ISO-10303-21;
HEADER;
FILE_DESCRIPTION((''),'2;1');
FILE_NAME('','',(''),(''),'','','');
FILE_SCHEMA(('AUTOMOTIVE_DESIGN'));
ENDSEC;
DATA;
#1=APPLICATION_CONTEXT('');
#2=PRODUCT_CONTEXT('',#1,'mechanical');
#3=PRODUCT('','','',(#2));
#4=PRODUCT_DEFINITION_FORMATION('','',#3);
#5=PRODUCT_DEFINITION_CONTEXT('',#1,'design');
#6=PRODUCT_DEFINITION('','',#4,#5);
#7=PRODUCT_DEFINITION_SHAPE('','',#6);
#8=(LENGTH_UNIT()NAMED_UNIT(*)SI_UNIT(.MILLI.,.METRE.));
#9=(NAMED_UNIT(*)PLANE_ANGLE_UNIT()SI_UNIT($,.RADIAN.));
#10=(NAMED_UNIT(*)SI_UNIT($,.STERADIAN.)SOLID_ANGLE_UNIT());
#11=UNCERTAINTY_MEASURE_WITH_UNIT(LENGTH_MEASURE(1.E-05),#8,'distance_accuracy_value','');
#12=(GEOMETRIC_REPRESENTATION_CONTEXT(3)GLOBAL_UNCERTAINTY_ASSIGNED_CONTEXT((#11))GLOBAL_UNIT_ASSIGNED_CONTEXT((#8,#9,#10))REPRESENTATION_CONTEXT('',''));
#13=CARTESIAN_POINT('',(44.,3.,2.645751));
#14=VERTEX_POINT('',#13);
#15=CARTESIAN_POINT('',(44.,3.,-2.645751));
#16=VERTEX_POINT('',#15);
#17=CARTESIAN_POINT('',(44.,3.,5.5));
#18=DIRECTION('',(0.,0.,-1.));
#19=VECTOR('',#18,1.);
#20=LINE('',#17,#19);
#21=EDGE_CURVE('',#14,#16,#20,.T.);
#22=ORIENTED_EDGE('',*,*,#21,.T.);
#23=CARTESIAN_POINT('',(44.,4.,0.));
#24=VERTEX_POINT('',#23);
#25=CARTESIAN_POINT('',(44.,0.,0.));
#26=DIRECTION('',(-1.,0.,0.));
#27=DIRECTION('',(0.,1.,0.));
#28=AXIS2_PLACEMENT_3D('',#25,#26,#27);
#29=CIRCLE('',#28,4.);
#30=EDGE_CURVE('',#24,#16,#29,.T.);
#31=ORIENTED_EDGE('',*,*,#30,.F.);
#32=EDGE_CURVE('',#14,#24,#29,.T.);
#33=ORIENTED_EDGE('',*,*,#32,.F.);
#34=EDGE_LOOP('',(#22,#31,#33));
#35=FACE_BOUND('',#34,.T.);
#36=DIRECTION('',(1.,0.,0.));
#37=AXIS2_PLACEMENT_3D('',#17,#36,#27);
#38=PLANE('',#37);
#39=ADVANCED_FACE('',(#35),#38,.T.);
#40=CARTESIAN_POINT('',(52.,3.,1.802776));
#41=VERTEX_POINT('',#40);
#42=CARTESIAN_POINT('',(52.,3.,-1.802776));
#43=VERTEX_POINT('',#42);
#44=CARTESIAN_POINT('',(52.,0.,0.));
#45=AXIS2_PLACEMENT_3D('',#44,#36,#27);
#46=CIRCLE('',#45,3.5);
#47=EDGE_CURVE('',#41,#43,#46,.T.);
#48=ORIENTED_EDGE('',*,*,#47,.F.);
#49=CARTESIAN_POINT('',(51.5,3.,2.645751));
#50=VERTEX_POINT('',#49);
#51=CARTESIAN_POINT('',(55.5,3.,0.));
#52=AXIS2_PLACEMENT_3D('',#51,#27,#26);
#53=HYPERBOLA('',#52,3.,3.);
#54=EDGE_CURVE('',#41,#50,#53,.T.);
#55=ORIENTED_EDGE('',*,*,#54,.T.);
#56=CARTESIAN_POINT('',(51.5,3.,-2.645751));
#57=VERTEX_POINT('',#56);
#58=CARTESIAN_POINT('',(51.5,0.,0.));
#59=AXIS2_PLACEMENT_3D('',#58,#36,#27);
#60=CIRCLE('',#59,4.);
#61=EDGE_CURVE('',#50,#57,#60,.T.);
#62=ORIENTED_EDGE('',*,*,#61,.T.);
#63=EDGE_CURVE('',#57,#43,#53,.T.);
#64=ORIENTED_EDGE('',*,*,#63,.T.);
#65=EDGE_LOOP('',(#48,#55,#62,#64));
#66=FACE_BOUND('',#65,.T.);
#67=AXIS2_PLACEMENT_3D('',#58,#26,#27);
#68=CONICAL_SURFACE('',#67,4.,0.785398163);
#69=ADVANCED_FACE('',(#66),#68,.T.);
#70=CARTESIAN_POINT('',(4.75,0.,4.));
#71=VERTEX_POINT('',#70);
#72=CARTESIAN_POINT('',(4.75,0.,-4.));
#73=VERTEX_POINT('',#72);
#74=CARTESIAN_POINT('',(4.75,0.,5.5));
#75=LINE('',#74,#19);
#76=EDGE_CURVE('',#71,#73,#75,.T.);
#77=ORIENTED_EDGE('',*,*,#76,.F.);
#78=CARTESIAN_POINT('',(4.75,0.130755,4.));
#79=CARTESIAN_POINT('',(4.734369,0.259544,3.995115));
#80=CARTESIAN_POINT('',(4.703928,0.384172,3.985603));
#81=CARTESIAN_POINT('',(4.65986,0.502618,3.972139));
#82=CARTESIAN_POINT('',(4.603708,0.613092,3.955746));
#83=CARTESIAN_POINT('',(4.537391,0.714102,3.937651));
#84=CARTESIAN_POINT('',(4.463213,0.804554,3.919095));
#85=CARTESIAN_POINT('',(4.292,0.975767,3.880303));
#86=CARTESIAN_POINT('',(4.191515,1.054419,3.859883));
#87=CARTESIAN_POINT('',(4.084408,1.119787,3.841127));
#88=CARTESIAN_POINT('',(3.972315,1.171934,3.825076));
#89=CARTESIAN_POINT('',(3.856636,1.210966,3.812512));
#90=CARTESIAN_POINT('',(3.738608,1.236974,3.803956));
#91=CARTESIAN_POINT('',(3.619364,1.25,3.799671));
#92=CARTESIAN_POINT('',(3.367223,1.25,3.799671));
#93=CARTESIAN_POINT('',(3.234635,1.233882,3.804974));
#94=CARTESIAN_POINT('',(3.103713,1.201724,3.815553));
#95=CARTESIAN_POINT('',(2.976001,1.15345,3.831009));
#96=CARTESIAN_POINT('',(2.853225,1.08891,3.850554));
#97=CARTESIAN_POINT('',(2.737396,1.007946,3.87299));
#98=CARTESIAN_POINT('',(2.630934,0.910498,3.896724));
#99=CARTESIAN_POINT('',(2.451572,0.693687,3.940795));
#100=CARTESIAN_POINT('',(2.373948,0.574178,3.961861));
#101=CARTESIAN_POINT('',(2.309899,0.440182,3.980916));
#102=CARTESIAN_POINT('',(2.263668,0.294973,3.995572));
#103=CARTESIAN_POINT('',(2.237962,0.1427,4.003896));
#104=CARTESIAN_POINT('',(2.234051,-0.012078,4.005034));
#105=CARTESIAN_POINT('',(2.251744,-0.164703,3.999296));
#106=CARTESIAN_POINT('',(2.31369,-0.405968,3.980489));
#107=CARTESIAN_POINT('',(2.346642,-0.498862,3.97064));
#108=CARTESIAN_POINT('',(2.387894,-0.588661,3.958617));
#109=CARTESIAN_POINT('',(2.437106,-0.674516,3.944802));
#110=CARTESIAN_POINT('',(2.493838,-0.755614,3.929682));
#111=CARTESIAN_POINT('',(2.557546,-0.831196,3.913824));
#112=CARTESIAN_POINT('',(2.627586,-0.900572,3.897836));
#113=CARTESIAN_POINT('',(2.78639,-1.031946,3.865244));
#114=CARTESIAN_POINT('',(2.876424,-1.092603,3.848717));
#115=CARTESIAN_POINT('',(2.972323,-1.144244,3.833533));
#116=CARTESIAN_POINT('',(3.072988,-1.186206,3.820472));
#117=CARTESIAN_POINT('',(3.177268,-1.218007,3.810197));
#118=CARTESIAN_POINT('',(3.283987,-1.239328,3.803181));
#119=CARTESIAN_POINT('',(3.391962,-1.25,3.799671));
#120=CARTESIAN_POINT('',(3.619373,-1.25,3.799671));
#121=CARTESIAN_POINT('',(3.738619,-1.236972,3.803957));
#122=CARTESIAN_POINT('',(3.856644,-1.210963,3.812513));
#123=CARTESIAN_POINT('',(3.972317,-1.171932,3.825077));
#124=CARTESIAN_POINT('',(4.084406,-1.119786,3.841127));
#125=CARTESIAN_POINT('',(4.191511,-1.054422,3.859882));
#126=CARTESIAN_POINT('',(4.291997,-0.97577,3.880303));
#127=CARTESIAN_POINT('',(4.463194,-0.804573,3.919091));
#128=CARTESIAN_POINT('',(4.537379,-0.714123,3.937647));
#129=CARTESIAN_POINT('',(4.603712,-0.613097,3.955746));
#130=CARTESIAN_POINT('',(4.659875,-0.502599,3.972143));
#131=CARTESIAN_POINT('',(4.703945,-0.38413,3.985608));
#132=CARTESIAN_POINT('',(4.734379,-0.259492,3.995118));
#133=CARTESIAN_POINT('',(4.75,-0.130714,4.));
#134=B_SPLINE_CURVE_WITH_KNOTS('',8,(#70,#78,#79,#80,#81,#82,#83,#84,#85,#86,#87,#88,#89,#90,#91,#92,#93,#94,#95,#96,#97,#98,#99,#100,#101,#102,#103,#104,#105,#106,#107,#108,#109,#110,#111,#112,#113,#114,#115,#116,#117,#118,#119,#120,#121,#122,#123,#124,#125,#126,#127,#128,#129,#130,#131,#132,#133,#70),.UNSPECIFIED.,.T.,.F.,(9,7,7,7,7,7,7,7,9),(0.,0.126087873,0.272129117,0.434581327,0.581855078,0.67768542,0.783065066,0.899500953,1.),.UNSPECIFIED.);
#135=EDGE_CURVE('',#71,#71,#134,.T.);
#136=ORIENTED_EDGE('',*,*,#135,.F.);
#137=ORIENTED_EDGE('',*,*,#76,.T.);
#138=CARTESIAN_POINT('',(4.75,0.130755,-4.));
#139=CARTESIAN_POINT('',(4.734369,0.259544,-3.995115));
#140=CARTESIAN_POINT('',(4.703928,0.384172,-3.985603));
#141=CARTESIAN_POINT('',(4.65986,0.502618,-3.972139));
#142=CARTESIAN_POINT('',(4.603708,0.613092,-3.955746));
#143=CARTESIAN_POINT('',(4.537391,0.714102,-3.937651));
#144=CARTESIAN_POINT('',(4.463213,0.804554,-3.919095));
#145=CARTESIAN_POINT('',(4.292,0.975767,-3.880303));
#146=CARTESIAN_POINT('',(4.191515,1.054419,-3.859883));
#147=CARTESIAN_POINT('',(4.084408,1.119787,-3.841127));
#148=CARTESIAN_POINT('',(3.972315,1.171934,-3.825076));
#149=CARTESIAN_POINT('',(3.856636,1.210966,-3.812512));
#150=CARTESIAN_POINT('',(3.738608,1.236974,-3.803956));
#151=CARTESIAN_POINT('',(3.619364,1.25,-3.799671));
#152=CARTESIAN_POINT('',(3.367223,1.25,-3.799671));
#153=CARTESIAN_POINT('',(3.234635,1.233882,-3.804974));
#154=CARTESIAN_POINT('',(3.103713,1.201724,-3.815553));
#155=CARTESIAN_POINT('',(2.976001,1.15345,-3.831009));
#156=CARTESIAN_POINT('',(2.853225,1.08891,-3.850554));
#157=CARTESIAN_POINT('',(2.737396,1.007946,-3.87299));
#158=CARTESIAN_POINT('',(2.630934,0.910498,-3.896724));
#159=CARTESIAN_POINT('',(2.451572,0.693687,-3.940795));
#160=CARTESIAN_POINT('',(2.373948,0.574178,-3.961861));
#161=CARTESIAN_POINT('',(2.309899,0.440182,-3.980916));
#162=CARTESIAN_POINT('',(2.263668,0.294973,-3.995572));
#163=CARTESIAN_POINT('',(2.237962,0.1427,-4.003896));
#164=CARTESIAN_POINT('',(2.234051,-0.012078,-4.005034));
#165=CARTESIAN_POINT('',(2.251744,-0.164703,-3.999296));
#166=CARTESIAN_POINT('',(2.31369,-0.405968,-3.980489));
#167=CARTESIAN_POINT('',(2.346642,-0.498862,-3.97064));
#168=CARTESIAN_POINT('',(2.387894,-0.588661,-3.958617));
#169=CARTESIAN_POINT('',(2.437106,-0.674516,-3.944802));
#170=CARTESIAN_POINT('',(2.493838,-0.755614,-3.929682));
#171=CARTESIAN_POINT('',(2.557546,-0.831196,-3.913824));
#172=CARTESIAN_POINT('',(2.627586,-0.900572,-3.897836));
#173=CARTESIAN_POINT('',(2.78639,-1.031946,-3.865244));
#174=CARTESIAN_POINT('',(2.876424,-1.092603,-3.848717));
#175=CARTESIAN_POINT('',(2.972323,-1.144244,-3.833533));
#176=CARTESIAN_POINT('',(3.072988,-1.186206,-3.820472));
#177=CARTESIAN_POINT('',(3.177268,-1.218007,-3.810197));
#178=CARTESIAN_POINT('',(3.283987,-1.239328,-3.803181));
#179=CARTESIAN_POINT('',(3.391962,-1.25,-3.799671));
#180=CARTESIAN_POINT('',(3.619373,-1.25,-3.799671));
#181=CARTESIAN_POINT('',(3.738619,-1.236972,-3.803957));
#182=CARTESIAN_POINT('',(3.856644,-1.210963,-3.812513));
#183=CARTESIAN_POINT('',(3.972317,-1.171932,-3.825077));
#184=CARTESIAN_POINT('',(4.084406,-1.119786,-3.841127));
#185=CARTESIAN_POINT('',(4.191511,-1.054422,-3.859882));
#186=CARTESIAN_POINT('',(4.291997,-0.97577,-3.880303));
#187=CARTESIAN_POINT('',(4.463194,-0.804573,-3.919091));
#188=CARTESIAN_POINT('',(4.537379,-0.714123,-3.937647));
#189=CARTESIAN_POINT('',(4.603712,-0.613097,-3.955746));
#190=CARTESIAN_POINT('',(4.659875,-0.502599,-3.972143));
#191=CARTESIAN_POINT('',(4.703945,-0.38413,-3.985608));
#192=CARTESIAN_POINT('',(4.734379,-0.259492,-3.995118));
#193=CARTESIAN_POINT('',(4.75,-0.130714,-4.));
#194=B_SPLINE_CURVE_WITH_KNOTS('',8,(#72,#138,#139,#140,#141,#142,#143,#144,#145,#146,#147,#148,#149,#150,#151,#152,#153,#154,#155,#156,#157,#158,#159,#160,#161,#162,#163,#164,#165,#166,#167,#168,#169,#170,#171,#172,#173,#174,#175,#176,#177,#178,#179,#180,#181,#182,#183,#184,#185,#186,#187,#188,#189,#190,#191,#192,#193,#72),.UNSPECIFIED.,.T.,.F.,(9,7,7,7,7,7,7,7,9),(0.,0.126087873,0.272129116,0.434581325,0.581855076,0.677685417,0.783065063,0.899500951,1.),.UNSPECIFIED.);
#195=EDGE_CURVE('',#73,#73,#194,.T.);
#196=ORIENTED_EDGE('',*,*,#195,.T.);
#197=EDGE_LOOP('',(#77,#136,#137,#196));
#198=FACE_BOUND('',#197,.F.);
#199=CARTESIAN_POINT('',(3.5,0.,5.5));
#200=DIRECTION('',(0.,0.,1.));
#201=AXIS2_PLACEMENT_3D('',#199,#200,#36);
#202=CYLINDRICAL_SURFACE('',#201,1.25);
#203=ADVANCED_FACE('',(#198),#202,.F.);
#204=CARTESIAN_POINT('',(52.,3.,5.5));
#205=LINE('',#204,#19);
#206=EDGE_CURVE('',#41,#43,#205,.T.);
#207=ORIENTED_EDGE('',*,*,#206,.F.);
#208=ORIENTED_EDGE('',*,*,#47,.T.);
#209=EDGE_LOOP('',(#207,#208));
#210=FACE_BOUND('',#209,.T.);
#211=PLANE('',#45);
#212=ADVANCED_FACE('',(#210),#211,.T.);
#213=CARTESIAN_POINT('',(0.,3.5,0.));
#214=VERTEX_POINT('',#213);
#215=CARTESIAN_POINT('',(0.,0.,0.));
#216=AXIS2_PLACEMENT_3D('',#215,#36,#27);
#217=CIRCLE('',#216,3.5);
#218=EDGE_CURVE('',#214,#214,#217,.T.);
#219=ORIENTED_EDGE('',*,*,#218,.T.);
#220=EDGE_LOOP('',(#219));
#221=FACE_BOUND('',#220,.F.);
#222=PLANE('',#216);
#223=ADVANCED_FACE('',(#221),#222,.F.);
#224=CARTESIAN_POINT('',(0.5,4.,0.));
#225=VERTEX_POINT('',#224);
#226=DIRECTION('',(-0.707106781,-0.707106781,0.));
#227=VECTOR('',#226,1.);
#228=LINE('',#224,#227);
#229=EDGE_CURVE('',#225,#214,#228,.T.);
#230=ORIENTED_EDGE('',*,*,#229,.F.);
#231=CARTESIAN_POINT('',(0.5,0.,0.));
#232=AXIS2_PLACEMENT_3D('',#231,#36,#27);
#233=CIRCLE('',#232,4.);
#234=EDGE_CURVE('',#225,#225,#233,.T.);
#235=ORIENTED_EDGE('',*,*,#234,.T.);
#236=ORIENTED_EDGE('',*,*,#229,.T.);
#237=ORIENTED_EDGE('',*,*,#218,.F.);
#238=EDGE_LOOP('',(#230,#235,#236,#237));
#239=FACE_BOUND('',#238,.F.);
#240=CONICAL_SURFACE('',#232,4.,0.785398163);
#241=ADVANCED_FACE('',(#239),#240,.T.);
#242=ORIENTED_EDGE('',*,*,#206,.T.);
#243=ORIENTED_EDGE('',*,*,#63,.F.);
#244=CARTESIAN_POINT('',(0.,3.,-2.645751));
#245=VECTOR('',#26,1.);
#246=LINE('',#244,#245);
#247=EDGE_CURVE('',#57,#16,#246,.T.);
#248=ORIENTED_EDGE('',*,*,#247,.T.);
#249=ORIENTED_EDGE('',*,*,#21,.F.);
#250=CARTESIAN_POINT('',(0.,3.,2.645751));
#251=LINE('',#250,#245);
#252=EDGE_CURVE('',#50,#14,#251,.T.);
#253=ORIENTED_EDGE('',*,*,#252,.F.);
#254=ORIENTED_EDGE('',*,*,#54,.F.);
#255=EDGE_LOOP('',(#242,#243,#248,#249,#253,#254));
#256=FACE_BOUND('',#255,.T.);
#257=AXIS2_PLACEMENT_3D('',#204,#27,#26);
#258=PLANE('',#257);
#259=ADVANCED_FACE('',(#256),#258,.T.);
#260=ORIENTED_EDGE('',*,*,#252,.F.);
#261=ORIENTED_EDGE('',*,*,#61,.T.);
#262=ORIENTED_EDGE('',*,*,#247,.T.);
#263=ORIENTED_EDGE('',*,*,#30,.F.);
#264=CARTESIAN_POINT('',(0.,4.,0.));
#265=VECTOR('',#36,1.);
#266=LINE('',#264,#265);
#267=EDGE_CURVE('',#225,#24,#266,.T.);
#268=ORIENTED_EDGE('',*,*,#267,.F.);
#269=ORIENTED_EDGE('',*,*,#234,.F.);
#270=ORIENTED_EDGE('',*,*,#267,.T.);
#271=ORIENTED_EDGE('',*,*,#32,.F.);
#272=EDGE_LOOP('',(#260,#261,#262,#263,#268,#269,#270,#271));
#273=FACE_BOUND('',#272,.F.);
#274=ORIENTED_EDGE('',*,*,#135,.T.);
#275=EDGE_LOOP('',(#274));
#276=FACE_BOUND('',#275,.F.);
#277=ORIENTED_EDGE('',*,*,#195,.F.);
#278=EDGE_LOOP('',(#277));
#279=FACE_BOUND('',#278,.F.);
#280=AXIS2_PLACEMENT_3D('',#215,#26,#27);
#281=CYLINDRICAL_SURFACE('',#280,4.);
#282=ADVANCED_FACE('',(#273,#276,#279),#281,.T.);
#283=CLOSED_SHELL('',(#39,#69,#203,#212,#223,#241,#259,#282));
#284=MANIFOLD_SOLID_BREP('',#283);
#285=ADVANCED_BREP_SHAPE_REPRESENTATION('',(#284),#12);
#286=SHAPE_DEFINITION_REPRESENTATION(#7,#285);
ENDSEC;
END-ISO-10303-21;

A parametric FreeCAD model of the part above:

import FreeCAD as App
import Part
import Sketcher

V = App.Vector


def edges_at(feature, points):
    """Names of the edges that pass closest to the given points."""
    edges = feature.Shape.Edges
    near = lambda p: min(range(len(edges)), key=lambda i: edges[i].distToShape(Part.Vertex(*p))[0])
    return sorted({f"Edge{near(p) + 1}" for p in points})

doc = App.newDocument("Part")
body = doc.addObject("PartDesign::Body", "Body")

# Sketch on YZ plane
sketch1 = doc.addObject("Sketcher::SketchObject", "Sketch")
body.addObject(sketch1)
sketch1.AttachmentSupport = (doc.YZ_Plane, [""])
sketch1.MapMode = "FlatFace"
sketch1.addGeometry(Part.Circle(V(0, 0, 0), V(0, 0, 1), 4), False)
sketch1.addConstraint(Sketcher.Constraint("Coincident", 0, 3, -1, 1))
sketch1.addConstraint(Sketcher.Constraint("Diameter", 0, 8.0))
pad1 = doc.addObject("PartDesign::Pad", "Pad")
body.addObject(pad1)
pad1.Profile = sketch1
pad1.Length = 52
doc.recompute()

chamfer = doc.addObject("PartDesign::Chamfer", "Chamfer")
body.addObject(chamfer)
chamfer.Base = (pad1, edges_at(pad1, [(0, -4, 0), (52, -4, 0)]))
chamfer.Size = 0.5

# Sketch on XY plane
sketch2 = doc.addObject("Sketcher::SketchObject", "Sketch001")
body.addObject(sketch2)
sketch2.AttachmentSupport = (doc.XY_Plane, [""])
sketch2.MapMode = "FlatFace"
sketch2.AttachmentOffset = App.Placement(V(0, 0, 5.5), App.Rotation())
sketch2.addGeometry(Part.Circle(V(3.5, 0, 0), V(0, 0, 1), 1.2), False)
sketch2.addConstraint(Sketcher.Constraint("PointOnObject", 0, 3, -1))
sketch2.addConstraint(Sketcher.Constraint("Diameter", 0, 2.5))
sketch2.addConstraint(Sketcher.Constraint("DistanceX", -1, 1, 0, 3, 3.5))
pocket1 = doc.addObject("PartDesign::Pocket", "Pocket")
body.addObject(pocket1)
pocket1.Profile = sketch2
pocket1.Length = 52

# Sketch on XY plane
sketch3 = doc.addObject("Sketcher::SketchObject", "Sketch002")
body.addObject(sketch3)
sketch3.AttachmentSupport = (doc.XY_Plane, [""])
sketch3.MapMode = "FlatFace"
sketch3.AttachmentOffset = App.Placement(V(0, 0, 5.5), App.Rotation())
sketch3.addGeometry(Part.LineSegment(V(52, 4, 0), V(44, 4, 0)), False)
sketch3.addGeometry(Part.LineSegment(V(44, 4, 0), V(44, 3, 0)), False)
sketch3.addGeometry(Part.LineSegment(V(44, 3, 0), V(52, 3, 0)), False)
sketch3.addGeometry(Part.LineSegment(V(52, 3, 0), V(52, 4, 0)), False)
sketch3.addConstraint(Sketcher.Constraint("Coincident", 0, 2, 1, 1))
sketch3.addConstraint(Sketcher.Constraint("Coincident", 1, 2, 2, 1))
sketch3.addConstraint(Sketcher.Constraint("Coincident", 2, 2, 3, 1))
sketch3.addConstraint(Sketcher.Constraint("Coincident", 3, 2, 0, 1))
sketch3.addConstraint(Sketcher.Constraint("Horizontal", 0))
sketch3.addConstraint(Sketcher.Constraint("Vertical", 1))
sketch3.addConstraint(Sketcher.Constraint("Horizontal", 2))
sketch3.addConstraint(Sketcher.Constraint("Vertical", 3))
sketch3.addConstraint(Sketcher.Constraint("DistanceX", 0, 2, 0, 1, 8.0))
sketch3.addConstraint(Sketcher.Constraint("DistanceY", -1, 1, 1, 2, 3.0))
sketch3.addConstraint(Sketcher.Constraint("DistanceY", 1, 2, 1, 1, 1.0))
sketch3.addConstraint(Sketcher.Constraint("DistanceX", -1, 1, 0, 2, 44.0))
pocket2 = doc.addObject("PartDesign::Pocket", "Pocket001")
body.addObject(pocket2)
pocket2.Profile = sketch3
pocket2.Length = 52

doc.recompute()
